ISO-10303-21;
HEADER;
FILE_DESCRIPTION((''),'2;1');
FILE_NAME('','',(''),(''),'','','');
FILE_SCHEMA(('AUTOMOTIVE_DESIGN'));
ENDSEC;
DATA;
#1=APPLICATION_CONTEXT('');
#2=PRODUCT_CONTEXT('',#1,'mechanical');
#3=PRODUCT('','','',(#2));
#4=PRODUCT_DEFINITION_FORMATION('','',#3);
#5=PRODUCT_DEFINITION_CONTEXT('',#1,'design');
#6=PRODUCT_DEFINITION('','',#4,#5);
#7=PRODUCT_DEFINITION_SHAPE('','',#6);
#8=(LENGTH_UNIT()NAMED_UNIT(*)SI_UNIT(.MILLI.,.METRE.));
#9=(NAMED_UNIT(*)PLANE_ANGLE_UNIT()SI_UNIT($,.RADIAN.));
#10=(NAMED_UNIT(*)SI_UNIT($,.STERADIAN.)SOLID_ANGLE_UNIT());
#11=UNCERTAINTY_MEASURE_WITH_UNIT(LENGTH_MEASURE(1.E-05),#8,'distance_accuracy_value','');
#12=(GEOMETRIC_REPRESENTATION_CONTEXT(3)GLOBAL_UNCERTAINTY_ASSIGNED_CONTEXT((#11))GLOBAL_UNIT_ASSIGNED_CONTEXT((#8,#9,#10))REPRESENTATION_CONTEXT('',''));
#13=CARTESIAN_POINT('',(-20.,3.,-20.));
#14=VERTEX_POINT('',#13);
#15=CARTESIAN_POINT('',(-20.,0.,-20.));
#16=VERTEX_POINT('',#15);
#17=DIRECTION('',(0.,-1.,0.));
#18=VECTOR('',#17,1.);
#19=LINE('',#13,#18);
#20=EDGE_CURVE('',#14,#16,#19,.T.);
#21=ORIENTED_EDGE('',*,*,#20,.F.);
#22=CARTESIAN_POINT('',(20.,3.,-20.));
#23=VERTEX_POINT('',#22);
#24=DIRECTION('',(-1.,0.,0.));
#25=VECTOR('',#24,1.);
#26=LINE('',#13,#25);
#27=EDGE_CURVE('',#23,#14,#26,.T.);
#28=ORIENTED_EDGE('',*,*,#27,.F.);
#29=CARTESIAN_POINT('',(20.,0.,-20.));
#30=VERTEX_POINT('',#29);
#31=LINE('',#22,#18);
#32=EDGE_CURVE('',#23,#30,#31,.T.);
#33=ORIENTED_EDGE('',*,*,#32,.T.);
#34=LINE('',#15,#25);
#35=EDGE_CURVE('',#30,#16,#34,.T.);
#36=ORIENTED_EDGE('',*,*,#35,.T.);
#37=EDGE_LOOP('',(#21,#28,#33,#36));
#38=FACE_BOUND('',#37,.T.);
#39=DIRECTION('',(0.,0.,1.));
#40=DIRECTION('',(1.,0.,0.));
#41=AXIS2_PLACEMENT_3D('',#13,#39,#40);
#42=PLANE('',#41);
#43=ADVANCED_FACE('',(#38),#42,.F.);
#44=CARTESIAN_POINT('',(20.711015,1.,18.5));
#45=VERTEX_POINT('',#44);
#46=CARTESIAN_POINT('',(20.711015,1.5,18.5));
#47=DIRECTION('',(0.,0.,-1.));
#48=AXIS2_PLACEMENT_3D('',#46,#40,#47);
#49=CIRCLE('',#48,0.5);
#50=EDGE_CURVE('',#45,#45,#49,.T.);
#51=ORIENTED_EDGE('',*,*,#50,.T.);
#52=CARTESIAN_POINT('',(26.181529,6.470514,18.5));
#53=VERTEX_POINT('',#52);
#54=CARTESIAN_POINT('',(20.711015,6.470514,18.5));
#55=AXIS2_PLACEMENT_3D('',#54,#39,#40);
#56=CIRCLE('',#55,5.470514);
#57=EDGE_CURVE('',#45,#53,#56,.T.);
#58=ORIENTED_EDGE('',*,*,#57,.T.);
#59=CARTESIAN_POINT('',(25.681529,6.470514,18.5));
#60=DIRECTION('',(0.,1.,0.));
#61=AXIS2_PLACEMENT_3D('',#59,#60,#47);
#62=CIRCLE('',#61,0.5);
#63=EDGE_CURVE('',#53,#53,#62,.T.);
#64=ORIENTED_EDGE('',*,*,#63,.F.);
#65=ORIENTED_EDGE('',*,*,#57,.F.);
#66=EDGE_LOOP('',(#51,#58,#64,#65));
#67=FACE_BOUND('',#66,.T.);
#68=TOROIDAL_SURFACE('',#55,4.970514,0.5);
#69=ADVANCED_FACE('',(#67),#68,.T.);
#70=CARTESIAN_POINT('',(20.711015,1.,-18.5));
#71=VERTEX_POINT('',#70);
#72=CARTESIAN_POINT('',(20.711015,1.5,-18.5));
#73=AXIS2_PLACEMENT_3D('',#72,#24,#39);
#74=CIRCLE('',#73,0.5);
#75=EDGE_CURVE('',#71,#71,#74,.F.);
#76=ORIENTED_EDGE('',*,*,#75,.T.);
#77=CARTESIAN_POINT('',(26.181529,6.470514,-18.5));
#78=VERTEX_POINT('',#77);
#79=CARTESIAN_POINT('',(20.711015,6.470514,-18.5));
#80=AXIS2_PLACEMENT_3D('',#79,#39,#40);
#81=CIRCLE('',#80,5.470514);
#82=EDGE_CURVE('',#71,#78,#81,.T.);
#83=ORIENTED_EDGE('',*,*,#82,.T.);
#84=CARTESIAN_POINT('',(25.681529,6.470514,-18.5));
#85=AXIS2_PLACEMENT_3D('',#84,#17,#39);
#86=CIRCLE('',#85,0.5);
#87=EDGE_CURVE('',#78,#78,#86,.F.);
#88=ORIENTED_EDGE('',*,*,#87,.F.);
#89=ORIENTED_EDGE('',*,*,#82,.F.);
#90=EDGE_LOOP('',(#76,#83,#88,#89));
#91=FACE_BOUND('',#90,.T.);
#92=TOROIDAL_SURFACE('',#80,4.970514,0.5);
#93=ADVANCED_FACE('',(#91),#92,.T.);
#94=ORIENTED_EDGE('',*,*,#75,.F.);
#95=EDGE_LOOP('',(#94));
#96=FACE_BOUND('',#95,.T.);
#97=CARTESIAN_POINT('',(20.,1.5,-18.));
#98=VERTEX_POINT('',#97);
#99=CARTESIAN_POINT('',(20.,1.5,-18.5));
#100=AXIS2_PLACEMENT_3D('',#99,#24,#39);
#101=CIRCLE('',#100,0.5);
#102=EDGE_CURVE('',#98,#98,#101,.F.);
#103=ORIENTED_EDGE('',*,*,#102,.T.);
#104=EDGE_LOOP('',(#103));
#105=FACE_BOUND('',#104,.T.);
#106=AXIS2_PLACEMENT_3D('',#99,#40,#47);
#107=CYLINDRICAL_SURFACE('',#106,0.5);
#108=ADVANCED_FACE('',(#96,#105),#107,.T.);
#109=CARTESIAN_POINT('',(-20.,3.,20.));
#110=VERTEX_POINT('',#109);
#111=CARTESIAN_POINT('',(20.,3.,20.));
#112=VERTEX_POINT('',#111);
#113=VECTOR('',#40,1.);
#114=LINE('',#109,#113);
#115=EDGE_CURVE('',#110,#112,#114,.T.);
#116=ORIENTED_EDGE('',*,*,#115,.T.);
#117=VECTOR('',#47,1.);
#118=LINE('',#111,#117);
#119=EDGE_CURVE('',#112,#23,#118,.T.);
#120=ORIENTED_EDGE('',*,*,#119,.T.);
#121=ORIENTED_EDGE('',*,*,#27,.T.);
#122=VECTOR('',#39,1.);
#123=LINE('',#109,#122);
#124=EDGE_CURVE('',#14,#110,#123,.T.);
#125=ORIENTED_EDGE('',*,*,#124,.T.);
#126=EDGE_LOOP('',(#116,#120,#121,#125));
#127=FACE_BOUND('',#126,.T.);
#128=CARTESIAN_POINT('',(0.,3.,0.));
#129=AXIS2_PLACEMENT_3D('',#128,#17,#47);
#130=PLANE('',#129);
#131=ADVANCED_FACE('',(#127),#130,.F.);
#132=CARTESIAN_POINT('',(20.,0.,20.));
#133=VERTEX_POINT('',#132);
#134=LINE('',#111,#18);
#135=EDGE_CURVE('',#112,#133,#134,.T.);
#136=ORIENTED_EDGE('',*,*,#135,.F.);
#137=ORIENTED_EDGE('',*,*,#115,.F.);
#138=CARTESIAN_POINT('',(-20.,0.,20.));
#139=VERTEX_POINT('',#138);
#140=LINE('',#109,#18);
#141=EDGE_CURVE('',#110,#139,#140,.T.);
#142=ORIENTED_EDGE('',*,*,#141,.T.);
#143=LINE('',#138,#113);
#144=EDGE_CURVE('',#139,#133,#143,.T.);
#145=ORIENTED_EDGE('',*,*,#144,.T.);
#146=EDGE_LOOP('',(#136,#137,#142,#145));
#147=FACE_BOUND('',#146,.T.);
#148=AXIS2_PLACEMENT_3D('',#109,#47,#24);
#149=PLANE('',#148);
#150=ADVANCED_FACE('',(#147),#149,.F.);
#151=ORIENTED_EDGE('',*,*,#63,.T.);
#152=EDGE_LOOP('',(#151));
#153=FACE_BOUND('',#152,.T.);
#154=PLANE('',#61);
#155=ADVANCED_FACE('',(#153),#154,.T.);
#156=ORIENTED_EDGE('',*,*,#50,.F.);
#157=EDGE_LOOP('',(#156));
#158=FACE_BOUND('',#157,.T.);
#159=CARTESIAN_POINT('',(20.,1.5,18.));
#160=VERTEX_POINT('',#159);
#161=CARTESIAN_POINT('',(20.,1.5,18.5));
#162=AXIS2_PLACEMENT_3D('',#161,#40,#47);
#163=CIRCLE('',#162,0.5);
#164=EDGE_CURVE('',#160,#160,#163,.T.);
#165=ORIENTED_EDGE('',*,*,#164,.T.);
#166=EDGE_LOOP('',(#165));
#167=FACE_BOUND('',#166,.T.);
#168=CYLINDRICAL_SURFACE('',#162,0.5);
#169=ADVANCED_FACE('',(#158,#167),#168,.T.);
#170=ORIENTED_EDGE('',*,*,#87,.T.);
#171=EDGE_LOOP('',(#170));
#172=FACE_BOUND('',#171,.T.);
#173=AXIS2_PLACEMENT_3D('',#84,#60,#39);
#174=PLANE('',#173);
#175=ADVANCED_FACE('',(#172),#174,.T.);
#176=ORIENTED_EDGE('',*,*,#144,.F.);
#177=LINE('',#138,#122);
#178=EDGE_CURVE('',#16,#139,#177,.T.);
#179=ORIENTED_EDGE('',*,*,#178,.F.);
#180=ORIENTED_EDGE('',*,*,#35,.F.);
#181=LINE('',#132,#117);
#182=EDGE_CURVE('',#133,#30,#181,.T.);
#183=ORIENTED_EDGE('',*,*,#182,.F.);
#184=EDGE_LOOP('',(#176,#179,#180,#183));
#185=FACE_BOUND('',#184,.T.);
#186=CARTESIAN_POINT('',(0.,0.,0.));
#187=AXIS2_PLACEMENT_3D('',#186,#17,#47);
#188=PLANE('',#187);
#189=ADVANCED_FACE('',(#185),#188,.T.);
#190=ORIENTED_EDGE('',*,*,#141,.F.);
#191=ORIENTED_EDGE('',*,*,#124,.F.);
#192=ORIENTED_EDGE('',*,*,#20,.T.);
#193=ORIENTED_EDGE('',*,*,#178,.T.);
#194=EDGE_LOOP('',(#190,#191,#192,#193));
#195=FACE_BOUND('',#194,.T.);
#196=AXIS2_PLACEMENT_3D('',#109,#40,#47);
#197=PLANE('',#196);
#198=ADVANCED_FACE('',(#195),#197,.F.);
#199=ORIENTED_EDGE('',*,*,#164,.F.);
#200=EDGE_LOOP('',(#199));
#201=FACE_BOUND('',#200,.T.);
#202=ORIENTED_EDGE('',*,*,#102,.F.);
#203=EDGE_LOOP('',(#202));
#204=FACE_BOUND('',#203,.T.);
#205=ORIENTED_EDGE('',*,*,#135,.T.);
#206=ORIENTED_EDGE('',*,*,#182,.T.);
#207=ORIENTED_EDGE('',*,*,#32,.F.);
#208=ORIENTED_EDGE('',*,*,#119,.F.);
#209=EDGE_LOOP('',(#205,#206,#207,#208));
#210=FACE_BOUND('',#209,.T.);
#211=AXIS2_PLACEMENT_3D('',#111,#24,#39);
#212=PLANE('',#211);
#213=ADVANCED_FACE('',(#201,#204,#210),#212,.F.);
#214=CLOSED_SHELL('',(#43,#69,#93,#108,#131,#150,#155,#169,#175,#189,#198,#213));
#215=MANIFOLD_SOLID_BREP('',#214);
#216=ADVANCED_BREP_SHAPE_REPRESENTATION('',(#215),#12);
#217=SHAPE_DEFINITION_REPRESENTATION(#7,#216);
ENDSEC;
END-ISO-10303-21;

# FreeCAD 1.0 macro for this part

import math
import FreeCAD as App
import Part
import Sketcher
from FreeCAD import Vector
Q = App.Units.Quantity


def add_polygon(sketch, points):
    """Adds a closed chain of lines whose ends are joined by coincident constraints."""
    first, n = sketch.GeometryCount, len(points)
    for a, b in zip(points, points[1:] + points[:1]):
        sketch.addGeometry(Part.LineSegment(App.Vector(*a, 0), App.Vector(*b, 0)), False)
    for i in range(n):
        sketch.addConstraint(Sketcher.Constraint("Coincident", first + i, 2, first + (i + 1) % n, 1))

doc = App.newDocument("Part")
body = doc.addObject("PartDesign::Body", "Body")

# Sketch on XZ plane
sketch1 = body.newObject("Sketcher::SketchObject", "Sketch")
sketch1.AttachmentSupport = (doc.getObject("XZ_Plane"), [""])
sketch1.MapMode = "FlatFace"
add_polygon(sketch1, [(-20, -20), (-20, 20), (20, 20), (20, -20)])  # lines 0-3
sketch1.addConstraint([
    Sketcher.Constraint("Vertical", 0),
    Sketcher.Constraint("Horizontal", 1),
    Sketcher.Constraint("Vertical", 2),
    Sketcher.Constraint("Horizontal", 3),
    Sketcher.Constraint("Symmetric", 0, 2, 2, 2, -1, 1),
    Sketcher.Constraint("Equal", 3, 0),
    Sketcher.Constraint("DistanceX", 1, 1, 1, 2, Q("40 mm")),
])
pad1 = body.newObject("PartDesign::Pad", "Pad")
pad1.Profile = sketch1
pad1.Length = 3
pad1.Reversed = True

# Sketch on YZ plane
sketch2 = body.newObject("Sketcher::SketchObject", "Sketch001")
sketch2.AttachmentSupport = (doc.getObject("YZ_Plane"), [""])
sketch2.MapMode = "FlatFace"
sketch2.AttachmentOffset = App.Placement(Vector(0, 0, 20), App.Rotation())
sketch2.addGeometry(Part.Circle(Vector(1.5, 18.5, 0), Vector(0, 0, 1), 0.5), False)
sketch2.addConstraint([
    Sketcher.Constraint("Diameter", 0, Q("1 mm")),
    Sketcher.Constraint("DistanceX", -1, 1, 0, 3, Q("1.5 mm")),
    Sketcher.Constraint("DistanceY", -1, 1, 0, 3, Q("18.5 mm")),
])

# Sketch on XY plane
sketch3 = body.newObject("Sketcher::SketchObject", "Sketch002")
sketch3.AttachmentSupport = (doc.getObject("XY_Plane"), [""])
sketch3.MapMode = "FlatFace"
sketch3.AttachmentOffset = App.Placement(Vector(0, 0, 18.5), App.Rotation())
sketch3.addGeometry([
    Part.LineSegment(Vector(20, 1.5, 0), Vector(20.7, 1.5, 0)),
    Part.ArcOfCircle(Part.Circle(Vector(20.7, 6.5, 0), Vector(0, 0, 1), 5), math.radians(-90), math.radians(0)),
], False)
sketch3.addConstraint([
    Sketcher.Constraint("Tangent", 0, 2, 1, 1),
    Sketcher.Constraint("Horizontal", 0),
    Sketcher.Constraint("DistanceX", -1, 1, 0, 1, Q("20 mm")),
    Sketcher.Constraint("DistanceY", -1, 1, 0, 1, Q("1.5 mm")),
    Sketcher.Constraint("Radius", 1, Q("4.970514 mm")),
    Sketcher.Constraint("DistanceX", 0, 1, 0, 2, Q("0.711015 mm")),
    Sketcher.Constraint("DistanceY", -1, 1, 1, 2, Q("6.470514 mm")),
])
doc.recompute()

additivepipe = body.newObject("PartDesign::AdditivePipe", "AdditivePipe")
additivepipe.Profile = sketch2
additivepipe.Spine = (sketch3, ["Edge1", "Edge2"])
doc.recompute()

mirrored = body.newObject("PartDesign::Mirrored", "Mirrored")
mirrored.Originals = [additivepipe]
mirrored.MirrorPlane = (doc.getObject("XY_Plane"), [""])
body.Tip = mirrored

doc.recompute()
